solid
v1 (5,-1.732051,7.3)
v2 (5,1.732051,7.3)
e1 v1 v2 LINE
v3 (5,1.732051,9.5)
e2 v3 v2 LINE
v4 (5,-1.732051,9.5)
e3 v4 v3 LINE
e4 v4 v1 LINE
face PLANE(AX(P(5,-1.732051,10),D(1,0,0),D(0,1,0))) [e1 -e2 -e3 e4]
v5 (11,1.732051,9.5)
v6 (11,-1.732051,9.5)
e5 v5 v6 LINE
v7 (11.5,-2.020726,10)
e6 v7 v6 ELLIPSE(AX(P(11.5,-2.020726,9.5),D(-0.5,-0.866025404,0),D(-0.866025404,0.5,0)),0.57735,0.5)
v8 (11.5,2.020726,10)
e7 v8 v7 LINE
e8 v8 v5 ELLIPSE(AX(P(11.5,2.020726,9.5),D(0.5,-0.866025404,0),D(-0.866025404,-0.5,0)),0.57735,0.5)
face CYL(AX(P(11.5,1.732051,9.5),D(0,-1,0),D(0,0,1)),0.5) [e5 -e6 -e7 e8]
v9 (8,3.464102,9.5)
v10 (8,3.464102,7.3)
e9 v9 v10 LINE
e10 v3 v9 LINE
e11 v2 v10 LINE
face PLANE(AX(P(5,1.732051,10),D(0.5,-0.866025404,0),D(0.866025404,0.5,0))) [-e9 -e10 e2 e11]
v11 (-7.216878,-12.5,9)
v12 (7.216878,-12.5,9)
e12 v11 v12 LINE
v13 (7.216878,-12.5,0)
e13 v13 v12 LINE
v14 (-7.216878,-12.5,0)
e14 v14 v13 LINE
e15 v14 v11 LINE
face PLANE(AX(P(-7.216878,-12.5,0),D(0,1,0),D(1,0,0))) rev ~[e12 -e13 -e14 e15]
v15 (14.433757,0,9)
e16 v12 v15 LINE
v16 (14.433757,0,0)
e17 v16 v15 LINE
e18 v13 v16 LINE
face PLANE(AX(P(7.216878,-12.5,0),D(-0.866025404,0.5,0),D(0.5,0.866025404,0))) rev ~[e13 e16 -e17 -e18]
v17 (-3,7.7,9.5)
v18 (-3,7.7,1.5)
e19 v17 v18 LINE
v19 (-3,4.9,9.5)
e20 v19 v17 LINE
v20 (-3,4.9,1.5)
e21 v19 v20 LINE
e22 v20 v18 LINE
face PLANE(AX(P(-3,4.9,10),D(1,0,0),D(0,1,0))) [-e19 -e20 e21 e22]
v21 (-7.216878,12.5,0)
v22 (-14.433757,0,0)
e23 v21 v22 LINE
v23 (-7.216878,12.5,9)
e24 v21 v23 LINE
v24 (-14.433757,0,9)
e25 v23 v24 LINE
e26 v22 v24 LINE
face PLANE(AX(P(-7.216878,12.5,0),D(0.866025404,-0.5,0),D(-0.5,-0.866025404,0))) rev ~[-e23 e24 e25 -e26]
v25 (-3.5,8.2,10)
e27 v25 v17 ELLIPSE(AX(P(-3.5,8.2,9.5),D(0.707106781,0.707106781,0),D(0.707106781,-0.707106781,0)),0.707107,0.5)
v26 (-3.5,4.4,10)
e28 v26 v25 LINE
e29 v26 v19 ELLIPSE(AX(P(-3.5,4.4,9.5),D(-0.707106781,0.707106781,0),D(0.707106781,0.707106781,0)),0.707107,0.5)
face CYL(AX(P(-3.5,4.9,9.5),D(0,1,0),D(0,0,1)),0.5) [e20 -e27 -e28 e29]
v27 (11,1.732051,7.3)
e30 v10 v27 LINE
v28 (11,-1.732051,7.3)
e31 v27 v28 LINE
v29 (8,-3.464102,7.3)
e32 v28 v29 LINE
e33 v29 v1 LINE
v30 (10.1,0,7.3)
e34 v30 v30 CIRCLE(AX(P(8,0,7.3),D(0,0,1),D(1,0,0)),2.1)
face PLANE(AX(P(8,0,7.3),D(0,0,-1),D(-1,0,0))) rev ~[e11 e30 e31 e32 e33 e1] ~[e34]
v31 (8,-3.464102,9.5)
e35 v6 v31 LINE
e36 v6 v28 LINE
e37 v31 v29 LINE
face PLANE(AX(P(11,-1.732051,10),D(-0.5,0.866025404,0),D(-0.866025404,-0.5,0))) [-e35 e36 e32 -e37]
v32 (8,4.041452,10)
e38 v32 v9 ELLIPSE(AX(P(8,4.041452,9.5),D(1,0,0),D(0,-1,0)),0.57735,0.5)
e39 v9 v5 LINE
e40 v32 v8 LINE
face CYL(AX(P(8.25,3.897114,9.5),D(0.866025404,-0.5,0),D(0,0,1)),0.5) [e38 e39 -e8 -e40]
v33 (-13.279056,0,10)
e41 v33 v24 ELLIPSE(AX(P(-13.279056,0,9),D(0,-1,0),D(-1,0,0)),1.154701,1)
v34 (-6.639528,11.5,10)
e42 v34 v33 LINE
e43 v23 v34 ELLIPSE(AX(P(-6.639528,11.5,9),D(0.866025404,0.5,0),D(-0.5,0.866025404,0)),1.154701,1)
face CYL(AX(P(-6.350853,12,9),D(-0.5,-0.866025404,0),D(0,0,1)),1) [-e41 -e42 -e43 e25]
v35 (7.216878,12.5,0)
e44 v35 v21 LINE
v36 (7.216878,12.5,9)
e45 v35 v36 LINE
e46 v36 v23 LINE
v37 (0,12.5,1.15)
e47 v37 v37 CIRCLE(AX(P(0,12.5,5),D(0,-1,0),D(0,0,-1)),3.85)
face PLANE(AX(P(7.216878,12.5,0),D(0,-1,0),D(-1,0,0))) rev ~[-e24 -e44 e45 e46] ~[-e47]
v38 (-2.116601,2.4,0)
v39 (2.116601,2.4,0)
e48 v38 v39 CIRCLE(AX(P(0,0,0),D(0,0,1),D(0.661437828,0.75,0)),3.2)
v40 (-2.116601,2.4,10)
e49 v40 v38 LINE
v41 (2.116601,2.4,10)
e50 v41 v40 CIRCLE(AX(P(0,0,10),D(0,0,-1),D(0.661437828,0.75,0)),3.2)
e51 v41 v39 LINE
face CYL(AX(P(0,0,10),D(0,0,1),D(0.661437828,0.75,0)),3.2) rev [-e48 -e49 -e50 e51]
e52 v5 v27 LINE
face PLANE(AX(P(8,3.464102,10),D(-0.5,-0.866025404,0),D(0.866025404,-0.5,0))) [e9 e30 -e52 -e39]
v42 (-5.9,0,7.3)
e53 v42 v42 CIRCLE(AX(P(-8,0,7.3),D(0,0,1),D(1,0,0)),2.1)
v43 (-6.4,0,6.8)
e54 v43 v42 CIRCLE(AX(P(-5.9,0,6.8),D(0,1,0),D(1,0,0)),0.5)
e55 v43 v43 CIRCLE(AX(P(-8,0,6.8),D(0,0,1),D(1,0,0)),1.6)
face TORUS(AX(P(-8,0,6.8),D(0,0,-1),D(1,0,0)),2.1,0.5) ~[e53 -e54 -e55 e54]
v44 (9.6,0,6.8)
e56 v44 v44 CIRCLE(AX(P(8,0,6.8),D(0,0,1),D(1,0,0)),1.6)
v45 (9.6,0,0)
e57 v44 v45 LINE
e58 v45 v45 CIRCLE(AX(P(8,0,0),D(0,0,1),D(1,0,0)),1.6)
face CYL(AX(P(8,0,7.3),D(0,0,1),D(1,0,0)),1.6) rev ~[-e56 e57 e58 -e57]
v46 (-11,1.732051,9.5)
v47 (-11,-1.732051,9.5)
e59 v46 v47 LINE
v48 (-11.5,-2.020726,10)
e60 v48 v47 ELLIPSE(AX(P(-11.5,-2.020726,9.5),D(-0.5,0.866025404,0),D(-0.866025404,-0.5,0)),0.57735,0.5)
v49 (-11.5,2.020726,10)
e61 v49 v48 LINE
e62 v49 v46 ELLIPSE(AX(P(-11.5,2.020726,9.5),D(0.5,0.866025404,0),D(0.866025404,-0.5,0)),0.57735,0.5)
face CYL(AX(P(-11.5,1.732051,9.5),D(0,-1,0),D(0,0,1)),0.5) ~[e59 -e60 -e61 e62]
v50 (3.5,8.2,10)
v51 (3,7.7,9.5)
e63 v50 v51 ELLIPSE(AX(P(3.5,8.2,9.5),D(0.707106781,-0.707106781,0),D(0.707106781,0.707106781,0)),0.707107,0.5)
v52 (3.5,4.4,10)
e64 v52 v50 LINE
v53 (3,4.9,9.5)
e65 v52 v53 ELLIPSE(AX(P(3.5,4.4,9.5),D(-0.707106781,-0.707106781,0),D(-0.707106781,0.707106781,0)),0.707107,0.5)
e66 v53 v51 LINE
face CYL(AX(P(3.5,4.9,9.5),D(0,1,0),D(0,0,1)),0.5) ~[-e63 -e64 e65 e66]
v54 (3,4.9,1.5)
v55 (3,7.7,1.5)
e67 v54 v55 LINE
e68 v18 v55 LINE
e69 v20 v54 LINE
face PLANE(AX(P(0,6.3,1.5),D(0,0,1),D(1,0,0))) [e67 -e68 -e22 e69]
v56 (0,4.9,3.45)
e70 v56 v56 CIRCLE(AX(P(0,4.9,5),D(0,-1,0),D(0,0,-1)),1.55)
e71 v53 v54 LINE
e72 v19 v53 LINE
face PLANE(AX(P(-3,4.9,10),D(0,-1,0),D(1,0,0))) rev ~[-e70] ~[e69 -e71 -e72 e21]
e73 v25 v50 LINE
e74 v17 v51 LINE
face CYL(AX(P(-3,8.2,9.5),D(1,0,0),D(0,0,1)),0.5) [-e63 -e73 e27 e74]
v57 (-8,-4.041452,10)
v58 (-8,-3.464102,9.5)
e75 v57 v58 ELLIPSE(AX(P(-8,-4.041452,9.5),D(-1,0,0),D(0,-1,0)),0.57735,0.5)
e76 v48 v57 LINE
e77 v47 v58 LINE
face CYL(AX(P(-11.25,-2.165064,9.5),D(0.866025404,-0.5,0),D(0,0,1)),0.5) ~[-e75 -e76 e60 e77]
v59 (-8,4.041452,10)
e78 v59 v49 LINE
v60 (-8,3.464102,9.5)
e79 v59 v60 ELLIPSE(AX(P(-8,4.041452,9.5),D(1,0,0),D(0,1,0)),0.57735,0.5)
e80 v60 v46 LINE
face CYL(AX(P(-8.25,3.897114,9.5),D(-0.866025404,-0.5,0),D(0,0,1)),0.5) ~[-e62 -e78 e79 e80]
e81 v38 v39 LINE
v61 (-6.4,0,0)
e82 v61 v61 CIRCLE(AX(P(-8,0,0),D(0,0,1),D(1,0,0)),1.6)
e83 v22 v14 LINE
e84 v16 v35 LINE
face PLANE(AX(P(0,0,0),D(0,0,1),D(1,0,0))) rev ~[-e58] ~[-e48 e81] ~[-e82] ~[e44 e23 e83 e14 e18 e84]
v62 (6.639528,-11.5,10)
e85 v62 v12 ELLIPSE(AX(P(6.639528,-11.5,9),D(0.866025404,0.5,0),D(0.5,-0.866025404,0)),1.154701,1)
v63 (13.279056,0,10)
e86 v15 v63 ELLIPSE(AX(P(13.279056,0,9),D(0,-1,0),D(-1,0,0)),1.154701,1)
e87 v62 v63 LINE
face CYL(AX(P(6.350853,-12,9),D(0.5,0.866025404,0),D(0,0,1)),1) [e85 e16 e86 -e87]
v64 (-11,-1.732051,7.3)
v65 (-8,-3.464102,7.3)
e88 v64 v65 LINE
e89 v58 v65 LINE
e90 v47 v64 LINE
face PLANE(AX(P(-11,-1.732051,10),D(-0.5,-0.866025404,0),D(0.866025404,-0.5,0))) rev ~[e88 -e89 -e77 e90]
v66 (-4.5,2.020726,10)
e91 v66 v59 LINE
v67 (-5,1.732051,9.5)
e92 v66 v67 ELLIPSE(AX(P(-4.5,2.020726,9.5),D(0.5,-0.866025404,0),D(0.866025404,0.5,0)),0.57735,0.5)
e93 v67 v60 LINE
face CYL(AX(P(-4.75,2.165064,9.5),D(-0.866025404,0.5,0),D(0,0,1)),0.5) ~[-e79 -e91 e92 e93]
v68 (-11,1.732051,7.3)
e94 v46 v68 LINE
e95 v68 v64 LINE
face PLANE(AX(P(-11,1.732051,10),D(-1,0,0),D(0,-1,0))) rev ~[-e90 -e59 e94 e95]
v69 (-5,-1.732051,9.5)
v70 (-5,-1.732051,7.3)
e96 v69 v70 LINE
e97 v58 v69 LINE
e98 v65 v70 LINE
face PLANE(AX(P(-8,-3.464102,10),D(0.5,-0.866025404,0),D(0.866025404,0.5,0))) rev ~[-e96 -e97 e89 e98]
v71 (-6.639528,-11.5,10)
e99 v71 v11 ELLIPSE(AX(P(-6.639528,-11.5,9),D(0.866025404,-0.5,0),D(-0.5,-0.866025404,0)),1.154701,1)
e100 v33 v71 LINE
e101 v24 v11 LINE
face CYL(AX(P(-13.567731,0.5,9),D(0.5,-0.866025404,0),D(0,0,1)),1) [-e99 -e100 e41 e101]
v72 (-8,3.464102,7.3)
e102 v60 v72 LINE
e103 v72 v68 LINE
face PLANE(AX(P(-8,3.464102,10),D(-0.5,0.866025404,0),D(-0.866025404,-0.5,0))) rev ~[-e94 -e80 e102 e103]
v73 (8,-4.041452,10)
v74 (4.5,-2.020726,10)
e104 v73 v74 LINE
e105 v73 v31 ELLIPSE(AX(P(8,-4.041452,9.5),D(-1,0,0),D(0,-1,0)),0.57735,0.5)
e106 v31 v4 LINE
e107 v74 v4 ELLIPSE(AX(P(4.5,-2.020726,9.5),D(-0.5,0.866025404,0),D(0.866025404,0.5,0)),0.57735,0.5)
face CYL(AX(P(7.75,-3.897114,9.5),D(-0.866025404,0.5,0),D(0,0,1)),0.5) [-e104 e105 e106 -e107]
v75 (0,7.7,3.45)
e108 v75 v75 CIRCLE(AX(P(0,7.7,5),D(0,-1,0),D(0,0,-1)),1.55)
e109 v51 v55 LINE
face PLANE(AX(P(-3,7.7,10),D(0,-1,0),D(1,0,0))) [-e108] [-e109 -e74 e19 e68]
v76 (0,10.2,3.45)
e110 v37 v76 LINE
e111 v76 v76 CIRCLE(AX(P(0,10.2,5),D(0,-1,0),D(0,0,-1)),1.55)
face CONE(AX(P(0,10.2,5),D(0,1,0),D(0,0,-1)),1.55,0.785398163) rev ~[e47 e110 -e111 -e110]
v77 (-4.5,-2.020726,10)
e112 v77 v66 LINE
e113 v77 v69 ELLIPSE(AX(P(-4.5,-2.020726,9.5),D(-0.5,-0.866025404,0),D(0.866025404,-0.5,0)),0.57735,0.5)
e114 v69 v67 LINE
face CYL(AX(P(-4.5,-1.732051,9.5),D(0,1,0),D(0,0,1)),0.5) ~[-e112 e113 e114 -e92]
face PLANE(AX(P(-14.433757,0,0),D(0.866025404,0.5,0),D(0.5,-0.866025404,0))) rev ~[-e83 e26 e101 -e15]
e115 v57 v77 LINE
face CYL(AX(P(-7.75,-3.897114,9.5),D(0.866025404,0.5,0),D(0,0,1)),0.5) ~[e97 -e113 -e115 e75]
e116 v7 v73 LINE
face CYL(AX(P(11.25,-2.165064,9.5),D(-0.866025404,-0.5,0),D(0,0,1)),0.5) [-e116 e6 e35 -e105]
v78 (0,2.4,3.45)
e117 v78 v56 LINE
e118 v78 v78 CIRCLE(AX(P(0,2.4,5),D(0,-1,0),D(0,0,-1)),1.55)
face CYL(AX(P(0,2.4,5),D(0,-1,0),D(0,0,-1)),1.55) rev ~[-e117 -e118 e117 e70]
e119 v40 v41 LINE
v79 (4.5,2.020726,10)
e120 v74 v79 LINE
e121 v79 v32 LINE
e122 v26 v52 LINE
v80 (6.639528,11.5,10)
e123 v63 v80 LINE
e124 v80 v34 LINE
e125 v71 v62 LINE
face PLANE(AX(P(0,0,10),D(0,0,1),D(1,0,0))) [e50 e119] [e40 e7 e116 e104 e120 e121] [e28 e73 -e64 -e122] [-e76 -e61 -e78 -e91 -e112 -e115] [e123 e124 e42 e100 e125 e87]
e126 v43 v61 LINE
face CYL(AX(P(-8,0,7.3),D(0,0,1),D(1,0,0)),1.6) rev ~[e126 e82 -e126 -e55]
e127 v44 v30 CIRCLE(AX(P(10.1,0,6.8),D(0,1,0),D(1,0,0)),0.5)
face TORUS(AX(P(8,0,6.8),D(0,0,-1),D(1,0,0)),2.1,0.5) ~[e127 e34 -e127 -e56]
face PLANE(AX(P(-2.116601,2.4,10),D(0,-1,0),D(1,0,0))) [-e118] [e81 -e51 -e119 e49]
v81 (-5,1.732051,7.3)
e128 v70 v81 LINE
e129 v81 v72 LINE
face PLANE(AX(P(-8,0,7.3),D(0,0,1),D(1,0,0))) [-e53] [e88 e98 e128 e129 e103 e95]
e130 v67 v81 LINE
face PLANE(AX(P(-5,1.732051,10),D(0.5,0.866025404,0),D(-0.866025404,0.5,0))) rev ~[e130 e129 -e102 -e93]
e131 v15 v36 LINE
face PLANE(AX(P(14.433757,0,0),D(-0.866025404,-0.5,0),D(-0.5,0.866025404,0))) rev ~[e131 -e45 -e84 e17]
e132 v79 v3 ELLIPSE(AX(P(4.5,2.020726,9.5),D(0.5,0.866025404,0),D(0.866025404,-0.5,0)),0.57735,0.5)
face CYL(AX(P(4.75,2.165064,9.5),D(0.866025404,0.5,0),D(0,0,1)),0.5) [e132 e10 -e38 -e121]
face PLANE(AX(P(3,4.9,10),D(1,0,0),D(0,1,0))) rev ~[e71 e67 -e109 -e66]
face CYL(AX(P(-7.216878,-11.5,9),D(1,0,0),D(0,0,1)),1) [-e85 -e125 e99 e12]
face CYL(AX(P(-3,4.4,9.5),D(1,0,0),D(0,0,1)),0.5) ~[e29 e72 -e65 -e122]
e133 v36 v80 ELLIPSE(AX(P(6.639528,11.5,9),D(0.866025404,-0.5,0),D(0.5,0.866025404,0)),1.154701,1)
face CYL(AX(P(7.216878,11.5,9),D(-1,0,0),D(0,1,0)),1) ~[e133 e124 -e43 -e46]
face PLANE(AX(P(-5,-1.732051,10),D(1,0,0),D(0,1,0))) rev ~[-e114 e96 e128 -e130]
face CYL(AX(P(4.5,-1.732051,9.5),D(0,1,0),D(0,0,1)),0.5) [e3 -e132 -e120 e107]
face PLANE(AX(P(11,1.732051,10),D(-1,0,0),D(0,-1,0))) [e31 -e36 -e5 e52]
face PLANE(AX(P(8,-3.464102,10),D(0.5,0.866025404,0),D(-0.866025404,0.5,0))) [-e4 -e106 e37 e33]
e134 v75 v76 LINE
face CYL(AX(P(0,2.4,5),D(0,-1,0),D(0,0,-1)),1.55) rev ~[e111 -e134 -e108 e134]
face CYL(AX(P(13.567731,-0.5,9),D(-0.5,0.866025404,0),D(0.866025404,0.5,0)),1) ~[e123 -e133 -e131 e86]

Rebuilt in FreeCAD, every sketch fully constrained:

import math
import FreeCAD as App
import Part
import Sketcher
Q = App.Units.Quantity


def edges_at(feature, points):
    """Names of the edges that pass closest to the given points."""
    edges = feature.Shape.Edges
    near = lambda p: min(range(len(edges)), key=lambda i: edges[i].distToShape(Part.Vertex(*p))[0])
    return sorted({f"Edge{near(p) + 1}" for p in points})


def add_polygon(sketch, points):
    """Adds a closed chain of lines whose ends are joined by coincident constraints."""
    first, n = sketch.GeometryCount, len(points)
    for a, b in zip(points, points[1:] + points[:1]):
        sketch.addGeometry(Part.LineSegment(App.Vector(*a, 0), App.Vector(*b, 0)), False)
    for i in range(n):
        sketch.addConstraint(Sketcher.Constraint("Coincident", first + i, 2, first + (i + 1) % n, 1))

doc = App.newDocument("Part")
params = doc.addObject("Spreadsheet::Sheet", "Params")
for row, (alias, value) in enumerate([
    ("pad1_length", "10 mm"),
    ("sketch2_radius", "3.2 mm"),
    ("sketch3_diameter", "3.1 mm"),
    ("pocket2_length", "10.1 mm"),
    ("chamfer_size", "2.3 mm"),
    ("sketch4_width", "6 mm"),
    ("sketch4_height", "2.8 mm"),
    ("pocket3_length", "8.5 mm"),
    ("fillet_radius", "1 mm"),
    ("pocket4_length", "2.7 mm"),
    ("sketch6_diameter", "3.2 mm"),
    ("pocket5_length", "7.3 mm"),
    ("fillet2_radius", "0.5 mm"),
], start=1):
    params.set(f"A{row}", alias)
    params.set(f"B{row}", "=" + value)
    params.setAlias(f"B{row}", alias)

body = doc.addObject("PartDesign::Body", "Body")

# Sketch on XY plane
sketch1 = body.newObject("Sketcher::SketchObject", "Sketch")
sketch1.AttachmentSupport = (doc.getObject("XY_Plane"), [""])
sketch1.MapMode = "FlatFace"
add_polygon(sketch1, [(7, -12), (14, 0), (7, 12), (-7, 12), (-14, 0), (-7, -12)])  # lines 0-5
sketch1.addConstraint([
    Sketcher.Constraint("Horizontal", 2),
    Sketcher.Constraint("Horizontal", 5),
    Sketcher.Constraint("Symmetric", 0, 2, 3, 2, -1, 1),
    Sketcher.Constraint("Symmetric", 1, 2, 4, 2, -1, 1),
    Sketcher.Constraint("PointOnObject", 0, 2, -1),
    Sketcher.Constraint("Parallel", 0, 3),
    Sketcher.Constraint("Vertical", 2, 2, 4, 2),
    Sketcher.Constraint("Angle", 0, Q("60 deg")),
    Sketcher.Constraint("DistanceY", 4, 2, 2, 2, Q("25 mm")),
    Sketcher.Constraint("DistanceX", 2, 2, 2, 1, Q("14.433757 mm")),
])
pad1 = body.newObject("PartDesign::Pad", "Pad")
pad1.Profile = sketch1
pad1.setExpression("Length", "Params.pad1_length")

# Sketch on XY plane
sketch2 = body.newObject("Sketcher::SketchObject", "Sketch001")
sketch2.AttachmentSupport = (doc.getObject("XY_Plane"), [""])
sketch2.MapMode = "FlatFace"
sketch2.AttachmentOffset = App.Placement(App.Vector(0, 0, 10), App.Rotation())
sketch2.addGeometry([
    Part.LineSegment(App.Vector(2.1, 2.4, 0), App.Vector(-2.1, 2.4, 0)),
    Part.ArcOfCircle(Part.Circle(App.Vector(0, 0, 0), App.Vector(0, 0, 1), 3.2), math.radians(131), math.radians(409)),
], False)
sketch2.addConstraint([
    Sketcher.Constraint("Coincident", 0, 1, 1, 2),
    Sketcher.Constraint("Coincident", 1, 1, 0, 2),
    Sketcher.Constraint("Horizontal", 0),
    Sketcher.Constraint("Coincident", 1, 3, -1, 1),
    Sketcher.Constraint("Radius", 1, Q("3.2 mm")),
    Sketcher.Constraint("DistanceY", -1, 1, 0, 1, Q("2.4 mm")),
])
sketch2.setExpression("Constraints[4]", "Params.sketch2_radius")
pocket1 = body.newObject("PartDesign::Pocket", "Pocket")
pocket1.Profile = sketch2
pocket1.Type = "ThroughAll"

# Sketch on XZ plane
sketch3 = body.newObject("Sketcher::SketchObject", "Sketch002")
sketch3.AttachmentSupport = (doc.getObject("XZ_Plane"), [""])
sketch3.MapMode = "FlatFace"
sketch3.AttachmentOffset = App.Placement(App.Vector(0, 0, -2.4), App.Rotation())
sketch3.addGeometry(Part.Circle(App.Vector(0, 5, 0), App.Vector(0, 0, 1), 1.6), False)
sketch3.addConstraint([
    Sketcher.Constraint("PointOnObject", 0, 3, -2),
    Sketcher.Constraint("Diameter", 0, Q("3.1 mm")),
    Sketcher.Constraint("DistanceY", -1, 1, 0, 3, Q("5 mm")),
])
sketch3.setExpression("Constraints[1]", "Params.sketch3_diameter")
pocket2 = body.newObject("PartDesign::Pocket", "Pocket001")
pocket2.Profile = sketch3
pocket2.setExpression("Length", "Params.pocket2_length")
doc.recompute()

chamfer = body.newObject("PartDesign::Chamfer", "Chamfer")
chamfer.Base = (pocket2, edges_at(pocket2, [(0, 12.5, 6.55)]))
chamfer.setExpression("Size", "Params.chamfer_size")

# Sketch on XY plane
sketch4 = body.newObject("Sketcher::SketchObject", "Sketch003")
sketch4.AttachmentSupport = (doc.getObject("XY_Plane"), [""])
sketch4.MapMode = "FlatFace"
sketch4.AttachmentOffset = App.Placement(App.Vector(0, 0, 10), App.Rotation())
add_polygon(sketch4, [(-3, 7.7), (-3, 4.9), (3, 4.9), (3, 7.7)])  # lines 0-3
sketch4.addConstraint([
    Sketcher.Constraint("Vertical", 0),
    Sketcher.Constraint("Horizontal", 1),
    Sketcher.Constraint("Vertical", 2),
    Sketcher.Constraint("Horizontal", 3),
    Sketcher.Constraint("DistanceX", 1, 1, 1, 2, Q("6 mm")),
    Sketcher.Constraint("DistanceY", 0, 2, 0, 1, Q("2.8 mm")),
    Sketcher.Constraint("DistanceX", 0, 2, -1, 1, Q("3 mm")),
    Sketcher.Constraint("DistanceY", -1, 1, 0, 2, Q("4.9 mm")),
])
sketch4.setExpression("Constraints[8]", "Params.sketch4_width")
sketch4.setExpression("Constraints[9]", "Params.sketch4_height")
pocket3 = body.newObject("PartDesign::Pocket", "Pocket002")
pocket3.Profile = sketch4
pocket3.setExpression("Length", "Params.pocket3_length")
doc.recompute()

fillet = body.newObject("PartDesign::Fillet", "Fillet")
fillet.Base = (pocket3, edges_at(pocket3, [
    (10.825, 6.25, 10),
    (0, 12.5, 10),
    (-10.825, 6.25, 10),
    (-10.825, -6.25, 10),
    (0, -12.5, 10),
    (10.825, -6.25, 10),
]))
fillet.setExpression("Radius", "Params.fillet_radius")

# Sketch on XY plane
sketch5 = body.newObject("Sketcher::SketchObject", "Sketch004")
sketch5.AttachmentSupport = (doc.getObject("XY_Plane"), [""])
sketch5.MapMode = "FlatFace"
sketch5.AttachmentOffset = App.Placement(App.Vector(0, 0, 10), App.Rotation())
add_polygon(sketch5, [(-11, -1.7), (-8, -3.5), (-5, -1.7), (-5, 1.7), (-8, 3.5), (-11, 1.7)])  # lines 0-5
add_polygon(sketch5, [(5, -1.7), (8, -3.5), (11, -1.7), (11, 1.7), (8, 3.5), (5, 1.7)])  # lines 6-11
sketch5.addConstraint([
    Sketcher.Constraint("Vertical", 2),
    Sketcher.Constraint("Vertical", 5),
    Sketcher.Constraint("Vertical", 8),
    Sketcher.Constraint("Vertical", 11),
    Sketcher.Constraint("Symmetric", 3, 2, 6, 2, -1, 1),
    Sketcher.Constraint("Symmetric", 4, 2, 7, 2, -1, 1),
    Sketcher.Constraint("Symmetric", 0, 2, 9, 2, -1, 1),
    Sketcher.Constraint("Symmetric", 1, 2, 10, 2, -1, 1),
    Sketcher.Constraint("Symmetric", 0, 2, 6, 2, -2),
    Sketcher.Constraint("Parallel", 0, 3),
    Sketcher.Constraint("Parallel", 1, 4),
    Sketcher.Constraint("Parallel", 3, 6),
    Sketcher.Constraint("Parallel", 6, 9),
    Sketcher.Constraint("Horizontal", 2, 2, 4, 2),
    Sketcher.Constraint("Horizontal", 1, 2, 5, 2),
    Sketcher.Constraint("Angle", 0, Q("-30 deg")),
    Sketcher.Constraint("DistanceX", 0, 2, -1, 1, Q("8 mm")),
    Sketcher.Constraint("DistanceX", 1, 2, -1, 1, Q("5 mm")),
    Sketcher.Constraint("DistanceY", 2, 1, 2, 2, Q("3.464102 mm")),
])
pocket4 = body.newObject("PartDesign::Pocket", "Pocket003")
pocket4.Profile = sketch5
pocket4.setExpression("Length", "Params.pocket4_length")

# Sketch on XY plane
sketch6 = body.newObject("Sketcher::SketchObject", "Sketch005")
sketch6.AttachmentSupport = (doc.getObject("XY_Plane"), [""])
sketch6.MapMode = "FlatFace"
sketch6.AttachmentOffset = App.Placement(App.Vector(0, 0, 7.3), App.Rotation())
sketch6.addGeometry([
    Part.Circle(App.Vector(-8, 0, 0), App.Vector(0, 0, 1), 1.6),
    Part.Circle(App.Vector(8, 0, 0), App.Vector(0, 0, 1), 1.6),
], False)
sketch6.addConstraint([
    Sketcher.Constraint("Equal", 0, 1),
    Sketcher.Constraint("Symmetric", 0, 3, 1, 3, -1, 1),
    Sketcher.Constraint("PointOnObject", 0, 3, -1),
    Sketcher.Constraint("Diameter", 0, Q("3.2 mm")),
    Sketcher.Constraint("DistanceX", 0, 3, -1, 1, Q("8 mm")),
])
sketch6.setExpression("Constraints[3]", "Params.sketch6_diameter")
pocket5 = body.newObject("PartDesign::Pocket", "Pocket004")
pocket5.Profile = sketch6
pocket5.setExpression("Length", "Params.pocket5_length")
doc.recompute()

fillet2 = body.newObject("PartDesign::Fillet", "Fillet001")
fillet2.Base = (pocket5, edges_at(pocket5, [
    (-9.6, 0, 7.3),
    (6.4, 0, 7.3),
    (3, 6.3, 10),
    (0, 7.7, 10),
    (-3, 6.3, 10),
    (0, 4.9, 10),
    (9.5, -2.598, 10),
    (11, 0, 10),
    (9.5, 2.598, 10),
    (6.5, 2.598, 10),
    (5, 0, 10),
    (6.5, -2.598, 10),
    (-11, 0, 10),
    (-9.5, -2.598, 10),
    (-6.5, -2.598, 10),
    (-5, 0, 10),
    (-6.5, 2.598, 10),
    (-9.5, 2.598, 10),
]))
fillet2.setExpression("Radius", "Params.fillet2_radius")

doc.recompute()
